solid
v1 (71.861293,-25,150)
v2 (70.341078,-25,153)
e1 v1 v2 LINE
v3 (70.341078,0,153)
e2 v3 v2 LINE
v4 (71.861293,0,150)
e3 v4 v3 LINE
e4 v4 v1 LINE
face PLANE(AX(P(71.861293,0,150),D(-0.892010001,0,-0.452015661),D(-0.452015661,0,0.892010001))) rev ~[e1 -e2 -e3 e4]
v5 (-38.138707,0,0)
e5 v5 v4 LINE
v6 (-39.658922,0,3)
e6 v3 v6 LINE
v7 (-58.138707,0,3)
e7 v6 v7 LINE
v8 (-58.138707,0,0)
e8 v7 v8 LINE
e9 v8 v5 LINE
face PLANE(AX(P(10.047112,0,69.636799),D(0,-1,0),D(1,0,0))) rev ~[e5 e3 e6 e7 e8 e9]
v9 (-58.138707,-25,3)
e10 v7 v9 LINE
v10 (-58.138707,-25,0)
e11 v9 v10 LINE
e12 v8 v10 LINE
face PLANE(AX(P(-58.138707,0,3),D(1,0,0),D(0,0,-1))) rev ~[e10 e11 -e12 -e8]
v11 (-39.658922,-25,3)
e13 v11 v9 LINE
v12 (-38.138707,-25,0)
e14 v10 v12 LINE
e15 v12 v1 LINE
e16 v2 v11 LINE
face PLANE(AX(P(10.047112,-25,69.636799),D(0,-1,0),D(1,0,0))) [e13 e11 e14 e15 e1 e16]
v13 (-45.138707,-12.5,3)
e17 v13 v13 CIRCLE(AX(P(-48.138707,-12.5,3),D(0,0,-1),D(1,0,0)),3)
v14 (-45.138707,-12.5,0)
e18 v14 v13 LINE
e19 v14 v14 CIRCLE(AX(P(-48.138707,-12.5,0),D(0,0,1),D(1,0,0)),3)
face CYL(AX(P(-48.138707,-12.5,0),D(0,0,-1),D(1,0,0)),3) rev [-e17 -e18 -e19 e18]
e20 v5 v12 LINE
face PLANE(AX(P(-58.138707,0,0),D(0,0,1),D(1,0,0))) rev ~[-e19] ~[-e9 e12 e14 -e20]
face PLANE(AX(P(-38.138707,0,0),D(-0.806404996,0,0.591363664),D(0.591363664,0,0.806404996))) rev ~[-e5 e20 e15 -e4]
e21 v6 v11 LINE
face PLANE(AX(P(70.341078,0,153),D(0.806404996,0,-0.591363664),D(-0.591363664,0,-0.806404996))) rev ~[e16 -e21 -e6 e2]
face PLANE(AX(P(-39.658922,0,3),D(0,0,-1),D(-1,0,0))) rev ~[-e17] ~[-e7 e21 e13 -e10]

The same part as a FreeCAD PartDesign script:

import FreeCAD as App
import Part
import Sketcher

V = App.Vector


def add_polygon(sketch, points):
    """Adds a closed chain of lines whose ends are joined by coincident constraints."""
    first, n = sketch.GeometryCount, len(points)
    for a, b in zip(points, points[1:] + points[:1]):
        sketch.addGeometry(Part.LineSegment(App.Vector(*a, 0), App.Vector(*b, 0)), False)
    for i in range(n):
        sketch.addConstraint(Sketcher.Constraint("Coincident", first + i, 2, first + (i + 1) % n, 1))

doc = App.newDocument("Part")
params = doc.addObject("Spreadsheet::Sheet", "Params")
for row, (alias, value) in enumerate([
    ("sketch1_width", "20 mm"),
    ("sketch1_height", "3 mm"),
    ("pad1_length", "25 mm"),
    ("sketch2_diameter", "6 mm"),
    ("pocket1_length", "25 mm"),
], start=1):
    params.set(f"A{row}", alias)
    params.set(f"B{row}", "=" + value)
    params.setAlias(f"B{row}", alias)

body = doc.addObject("PartDesign::Body", "Body")

# Sketch on XZ plane
sketch1 = body.newObject("Sketcher::SketchObject", "Sketch")
sketch1.AttachmentSupport = (doc.getObject("XZ_Plane"), [""])
sketch1.MapMode = "FlatFace"
add_polygon(sketch1, [(-58.1, 3), (-58.1, 0), (-38.1, 0), (71.9, 150), (70.3, 153), (-39.7, 3)])  # lines 0-5
sketch1.addConstraint([
    Sketcher.Constraint("Vertical", 0),
    Sketcher.Constraint("Horizontal", 1),
    Sketcher.Constraint("Horizontal", 5),
    Sketcher.Constraint("PointOnObject", 0, 2, -1),
    Sketcher.Constraint("Parallel", 2, 4),
    Sketcher.Constraint("Equal", 2, 4),
    Sketcher.Constraint("DistanceX", 1, 1, 1, 2, 20.0),
    Sketcher.Constraint("DistanceY", 0, 2, 0, 1, 3.0),
    Sketcher.Constraint("DistanceY", -1, 1, 2, 2, 150.0),
    Sketcher.Constraint("DistanceX", 1, 2, 2, 2, 110.0),
    Sketcher.Constraint("Distance", 3, 3.363191),
    Sketcher.Constraint("DistanceX", 4, 2, -1, 1, 39.658922),
])
sketch1.setExpression("Constraints[12]", "Params.sketch1_width")
sketch1.setExpression("Constraints[13]", "Params.sketch1_height")
pad1 = body.newObject("PartDesign::Pad", "Pad")
pad1.Profile = sketch1
pad1.setExpression("Length", "Params.pad1_length")

# Sketch on XY plane
sketch2 = body.newObject("Sketcher::SketchObject", "Sketch001")
sketch2.AttachmentSupport = (doc.getObject("XY_Plane"), [""])
sketch2.MapMode = "FlatFace"
sketch2.addGeometry(Part.Circle(V(-48.1, -12.5, 0), V(0, 0, 1), 3), False)
sketch2.addConstraint([
    Sketcher.Constraint("Diameter", 0, 6.0),
    Sketcher.Constraint("DistanceY", 0, 3, -1, 1, 12.5),
    Sketcher.Constraint("DistanceX", 0, 3, -1, 1, 48.138707),
])
sketch2.setExpression("Constraints[0]", "Params.sketch2_diameter")
pocket1 = body.newObject("PartDesign::Pocket", "Pocket")
pocket1.Profile = sketch2
pocket1.setExpression("Length", "Params.pocket1_length")
pocket1.Reversed = True

doc.recompute()
